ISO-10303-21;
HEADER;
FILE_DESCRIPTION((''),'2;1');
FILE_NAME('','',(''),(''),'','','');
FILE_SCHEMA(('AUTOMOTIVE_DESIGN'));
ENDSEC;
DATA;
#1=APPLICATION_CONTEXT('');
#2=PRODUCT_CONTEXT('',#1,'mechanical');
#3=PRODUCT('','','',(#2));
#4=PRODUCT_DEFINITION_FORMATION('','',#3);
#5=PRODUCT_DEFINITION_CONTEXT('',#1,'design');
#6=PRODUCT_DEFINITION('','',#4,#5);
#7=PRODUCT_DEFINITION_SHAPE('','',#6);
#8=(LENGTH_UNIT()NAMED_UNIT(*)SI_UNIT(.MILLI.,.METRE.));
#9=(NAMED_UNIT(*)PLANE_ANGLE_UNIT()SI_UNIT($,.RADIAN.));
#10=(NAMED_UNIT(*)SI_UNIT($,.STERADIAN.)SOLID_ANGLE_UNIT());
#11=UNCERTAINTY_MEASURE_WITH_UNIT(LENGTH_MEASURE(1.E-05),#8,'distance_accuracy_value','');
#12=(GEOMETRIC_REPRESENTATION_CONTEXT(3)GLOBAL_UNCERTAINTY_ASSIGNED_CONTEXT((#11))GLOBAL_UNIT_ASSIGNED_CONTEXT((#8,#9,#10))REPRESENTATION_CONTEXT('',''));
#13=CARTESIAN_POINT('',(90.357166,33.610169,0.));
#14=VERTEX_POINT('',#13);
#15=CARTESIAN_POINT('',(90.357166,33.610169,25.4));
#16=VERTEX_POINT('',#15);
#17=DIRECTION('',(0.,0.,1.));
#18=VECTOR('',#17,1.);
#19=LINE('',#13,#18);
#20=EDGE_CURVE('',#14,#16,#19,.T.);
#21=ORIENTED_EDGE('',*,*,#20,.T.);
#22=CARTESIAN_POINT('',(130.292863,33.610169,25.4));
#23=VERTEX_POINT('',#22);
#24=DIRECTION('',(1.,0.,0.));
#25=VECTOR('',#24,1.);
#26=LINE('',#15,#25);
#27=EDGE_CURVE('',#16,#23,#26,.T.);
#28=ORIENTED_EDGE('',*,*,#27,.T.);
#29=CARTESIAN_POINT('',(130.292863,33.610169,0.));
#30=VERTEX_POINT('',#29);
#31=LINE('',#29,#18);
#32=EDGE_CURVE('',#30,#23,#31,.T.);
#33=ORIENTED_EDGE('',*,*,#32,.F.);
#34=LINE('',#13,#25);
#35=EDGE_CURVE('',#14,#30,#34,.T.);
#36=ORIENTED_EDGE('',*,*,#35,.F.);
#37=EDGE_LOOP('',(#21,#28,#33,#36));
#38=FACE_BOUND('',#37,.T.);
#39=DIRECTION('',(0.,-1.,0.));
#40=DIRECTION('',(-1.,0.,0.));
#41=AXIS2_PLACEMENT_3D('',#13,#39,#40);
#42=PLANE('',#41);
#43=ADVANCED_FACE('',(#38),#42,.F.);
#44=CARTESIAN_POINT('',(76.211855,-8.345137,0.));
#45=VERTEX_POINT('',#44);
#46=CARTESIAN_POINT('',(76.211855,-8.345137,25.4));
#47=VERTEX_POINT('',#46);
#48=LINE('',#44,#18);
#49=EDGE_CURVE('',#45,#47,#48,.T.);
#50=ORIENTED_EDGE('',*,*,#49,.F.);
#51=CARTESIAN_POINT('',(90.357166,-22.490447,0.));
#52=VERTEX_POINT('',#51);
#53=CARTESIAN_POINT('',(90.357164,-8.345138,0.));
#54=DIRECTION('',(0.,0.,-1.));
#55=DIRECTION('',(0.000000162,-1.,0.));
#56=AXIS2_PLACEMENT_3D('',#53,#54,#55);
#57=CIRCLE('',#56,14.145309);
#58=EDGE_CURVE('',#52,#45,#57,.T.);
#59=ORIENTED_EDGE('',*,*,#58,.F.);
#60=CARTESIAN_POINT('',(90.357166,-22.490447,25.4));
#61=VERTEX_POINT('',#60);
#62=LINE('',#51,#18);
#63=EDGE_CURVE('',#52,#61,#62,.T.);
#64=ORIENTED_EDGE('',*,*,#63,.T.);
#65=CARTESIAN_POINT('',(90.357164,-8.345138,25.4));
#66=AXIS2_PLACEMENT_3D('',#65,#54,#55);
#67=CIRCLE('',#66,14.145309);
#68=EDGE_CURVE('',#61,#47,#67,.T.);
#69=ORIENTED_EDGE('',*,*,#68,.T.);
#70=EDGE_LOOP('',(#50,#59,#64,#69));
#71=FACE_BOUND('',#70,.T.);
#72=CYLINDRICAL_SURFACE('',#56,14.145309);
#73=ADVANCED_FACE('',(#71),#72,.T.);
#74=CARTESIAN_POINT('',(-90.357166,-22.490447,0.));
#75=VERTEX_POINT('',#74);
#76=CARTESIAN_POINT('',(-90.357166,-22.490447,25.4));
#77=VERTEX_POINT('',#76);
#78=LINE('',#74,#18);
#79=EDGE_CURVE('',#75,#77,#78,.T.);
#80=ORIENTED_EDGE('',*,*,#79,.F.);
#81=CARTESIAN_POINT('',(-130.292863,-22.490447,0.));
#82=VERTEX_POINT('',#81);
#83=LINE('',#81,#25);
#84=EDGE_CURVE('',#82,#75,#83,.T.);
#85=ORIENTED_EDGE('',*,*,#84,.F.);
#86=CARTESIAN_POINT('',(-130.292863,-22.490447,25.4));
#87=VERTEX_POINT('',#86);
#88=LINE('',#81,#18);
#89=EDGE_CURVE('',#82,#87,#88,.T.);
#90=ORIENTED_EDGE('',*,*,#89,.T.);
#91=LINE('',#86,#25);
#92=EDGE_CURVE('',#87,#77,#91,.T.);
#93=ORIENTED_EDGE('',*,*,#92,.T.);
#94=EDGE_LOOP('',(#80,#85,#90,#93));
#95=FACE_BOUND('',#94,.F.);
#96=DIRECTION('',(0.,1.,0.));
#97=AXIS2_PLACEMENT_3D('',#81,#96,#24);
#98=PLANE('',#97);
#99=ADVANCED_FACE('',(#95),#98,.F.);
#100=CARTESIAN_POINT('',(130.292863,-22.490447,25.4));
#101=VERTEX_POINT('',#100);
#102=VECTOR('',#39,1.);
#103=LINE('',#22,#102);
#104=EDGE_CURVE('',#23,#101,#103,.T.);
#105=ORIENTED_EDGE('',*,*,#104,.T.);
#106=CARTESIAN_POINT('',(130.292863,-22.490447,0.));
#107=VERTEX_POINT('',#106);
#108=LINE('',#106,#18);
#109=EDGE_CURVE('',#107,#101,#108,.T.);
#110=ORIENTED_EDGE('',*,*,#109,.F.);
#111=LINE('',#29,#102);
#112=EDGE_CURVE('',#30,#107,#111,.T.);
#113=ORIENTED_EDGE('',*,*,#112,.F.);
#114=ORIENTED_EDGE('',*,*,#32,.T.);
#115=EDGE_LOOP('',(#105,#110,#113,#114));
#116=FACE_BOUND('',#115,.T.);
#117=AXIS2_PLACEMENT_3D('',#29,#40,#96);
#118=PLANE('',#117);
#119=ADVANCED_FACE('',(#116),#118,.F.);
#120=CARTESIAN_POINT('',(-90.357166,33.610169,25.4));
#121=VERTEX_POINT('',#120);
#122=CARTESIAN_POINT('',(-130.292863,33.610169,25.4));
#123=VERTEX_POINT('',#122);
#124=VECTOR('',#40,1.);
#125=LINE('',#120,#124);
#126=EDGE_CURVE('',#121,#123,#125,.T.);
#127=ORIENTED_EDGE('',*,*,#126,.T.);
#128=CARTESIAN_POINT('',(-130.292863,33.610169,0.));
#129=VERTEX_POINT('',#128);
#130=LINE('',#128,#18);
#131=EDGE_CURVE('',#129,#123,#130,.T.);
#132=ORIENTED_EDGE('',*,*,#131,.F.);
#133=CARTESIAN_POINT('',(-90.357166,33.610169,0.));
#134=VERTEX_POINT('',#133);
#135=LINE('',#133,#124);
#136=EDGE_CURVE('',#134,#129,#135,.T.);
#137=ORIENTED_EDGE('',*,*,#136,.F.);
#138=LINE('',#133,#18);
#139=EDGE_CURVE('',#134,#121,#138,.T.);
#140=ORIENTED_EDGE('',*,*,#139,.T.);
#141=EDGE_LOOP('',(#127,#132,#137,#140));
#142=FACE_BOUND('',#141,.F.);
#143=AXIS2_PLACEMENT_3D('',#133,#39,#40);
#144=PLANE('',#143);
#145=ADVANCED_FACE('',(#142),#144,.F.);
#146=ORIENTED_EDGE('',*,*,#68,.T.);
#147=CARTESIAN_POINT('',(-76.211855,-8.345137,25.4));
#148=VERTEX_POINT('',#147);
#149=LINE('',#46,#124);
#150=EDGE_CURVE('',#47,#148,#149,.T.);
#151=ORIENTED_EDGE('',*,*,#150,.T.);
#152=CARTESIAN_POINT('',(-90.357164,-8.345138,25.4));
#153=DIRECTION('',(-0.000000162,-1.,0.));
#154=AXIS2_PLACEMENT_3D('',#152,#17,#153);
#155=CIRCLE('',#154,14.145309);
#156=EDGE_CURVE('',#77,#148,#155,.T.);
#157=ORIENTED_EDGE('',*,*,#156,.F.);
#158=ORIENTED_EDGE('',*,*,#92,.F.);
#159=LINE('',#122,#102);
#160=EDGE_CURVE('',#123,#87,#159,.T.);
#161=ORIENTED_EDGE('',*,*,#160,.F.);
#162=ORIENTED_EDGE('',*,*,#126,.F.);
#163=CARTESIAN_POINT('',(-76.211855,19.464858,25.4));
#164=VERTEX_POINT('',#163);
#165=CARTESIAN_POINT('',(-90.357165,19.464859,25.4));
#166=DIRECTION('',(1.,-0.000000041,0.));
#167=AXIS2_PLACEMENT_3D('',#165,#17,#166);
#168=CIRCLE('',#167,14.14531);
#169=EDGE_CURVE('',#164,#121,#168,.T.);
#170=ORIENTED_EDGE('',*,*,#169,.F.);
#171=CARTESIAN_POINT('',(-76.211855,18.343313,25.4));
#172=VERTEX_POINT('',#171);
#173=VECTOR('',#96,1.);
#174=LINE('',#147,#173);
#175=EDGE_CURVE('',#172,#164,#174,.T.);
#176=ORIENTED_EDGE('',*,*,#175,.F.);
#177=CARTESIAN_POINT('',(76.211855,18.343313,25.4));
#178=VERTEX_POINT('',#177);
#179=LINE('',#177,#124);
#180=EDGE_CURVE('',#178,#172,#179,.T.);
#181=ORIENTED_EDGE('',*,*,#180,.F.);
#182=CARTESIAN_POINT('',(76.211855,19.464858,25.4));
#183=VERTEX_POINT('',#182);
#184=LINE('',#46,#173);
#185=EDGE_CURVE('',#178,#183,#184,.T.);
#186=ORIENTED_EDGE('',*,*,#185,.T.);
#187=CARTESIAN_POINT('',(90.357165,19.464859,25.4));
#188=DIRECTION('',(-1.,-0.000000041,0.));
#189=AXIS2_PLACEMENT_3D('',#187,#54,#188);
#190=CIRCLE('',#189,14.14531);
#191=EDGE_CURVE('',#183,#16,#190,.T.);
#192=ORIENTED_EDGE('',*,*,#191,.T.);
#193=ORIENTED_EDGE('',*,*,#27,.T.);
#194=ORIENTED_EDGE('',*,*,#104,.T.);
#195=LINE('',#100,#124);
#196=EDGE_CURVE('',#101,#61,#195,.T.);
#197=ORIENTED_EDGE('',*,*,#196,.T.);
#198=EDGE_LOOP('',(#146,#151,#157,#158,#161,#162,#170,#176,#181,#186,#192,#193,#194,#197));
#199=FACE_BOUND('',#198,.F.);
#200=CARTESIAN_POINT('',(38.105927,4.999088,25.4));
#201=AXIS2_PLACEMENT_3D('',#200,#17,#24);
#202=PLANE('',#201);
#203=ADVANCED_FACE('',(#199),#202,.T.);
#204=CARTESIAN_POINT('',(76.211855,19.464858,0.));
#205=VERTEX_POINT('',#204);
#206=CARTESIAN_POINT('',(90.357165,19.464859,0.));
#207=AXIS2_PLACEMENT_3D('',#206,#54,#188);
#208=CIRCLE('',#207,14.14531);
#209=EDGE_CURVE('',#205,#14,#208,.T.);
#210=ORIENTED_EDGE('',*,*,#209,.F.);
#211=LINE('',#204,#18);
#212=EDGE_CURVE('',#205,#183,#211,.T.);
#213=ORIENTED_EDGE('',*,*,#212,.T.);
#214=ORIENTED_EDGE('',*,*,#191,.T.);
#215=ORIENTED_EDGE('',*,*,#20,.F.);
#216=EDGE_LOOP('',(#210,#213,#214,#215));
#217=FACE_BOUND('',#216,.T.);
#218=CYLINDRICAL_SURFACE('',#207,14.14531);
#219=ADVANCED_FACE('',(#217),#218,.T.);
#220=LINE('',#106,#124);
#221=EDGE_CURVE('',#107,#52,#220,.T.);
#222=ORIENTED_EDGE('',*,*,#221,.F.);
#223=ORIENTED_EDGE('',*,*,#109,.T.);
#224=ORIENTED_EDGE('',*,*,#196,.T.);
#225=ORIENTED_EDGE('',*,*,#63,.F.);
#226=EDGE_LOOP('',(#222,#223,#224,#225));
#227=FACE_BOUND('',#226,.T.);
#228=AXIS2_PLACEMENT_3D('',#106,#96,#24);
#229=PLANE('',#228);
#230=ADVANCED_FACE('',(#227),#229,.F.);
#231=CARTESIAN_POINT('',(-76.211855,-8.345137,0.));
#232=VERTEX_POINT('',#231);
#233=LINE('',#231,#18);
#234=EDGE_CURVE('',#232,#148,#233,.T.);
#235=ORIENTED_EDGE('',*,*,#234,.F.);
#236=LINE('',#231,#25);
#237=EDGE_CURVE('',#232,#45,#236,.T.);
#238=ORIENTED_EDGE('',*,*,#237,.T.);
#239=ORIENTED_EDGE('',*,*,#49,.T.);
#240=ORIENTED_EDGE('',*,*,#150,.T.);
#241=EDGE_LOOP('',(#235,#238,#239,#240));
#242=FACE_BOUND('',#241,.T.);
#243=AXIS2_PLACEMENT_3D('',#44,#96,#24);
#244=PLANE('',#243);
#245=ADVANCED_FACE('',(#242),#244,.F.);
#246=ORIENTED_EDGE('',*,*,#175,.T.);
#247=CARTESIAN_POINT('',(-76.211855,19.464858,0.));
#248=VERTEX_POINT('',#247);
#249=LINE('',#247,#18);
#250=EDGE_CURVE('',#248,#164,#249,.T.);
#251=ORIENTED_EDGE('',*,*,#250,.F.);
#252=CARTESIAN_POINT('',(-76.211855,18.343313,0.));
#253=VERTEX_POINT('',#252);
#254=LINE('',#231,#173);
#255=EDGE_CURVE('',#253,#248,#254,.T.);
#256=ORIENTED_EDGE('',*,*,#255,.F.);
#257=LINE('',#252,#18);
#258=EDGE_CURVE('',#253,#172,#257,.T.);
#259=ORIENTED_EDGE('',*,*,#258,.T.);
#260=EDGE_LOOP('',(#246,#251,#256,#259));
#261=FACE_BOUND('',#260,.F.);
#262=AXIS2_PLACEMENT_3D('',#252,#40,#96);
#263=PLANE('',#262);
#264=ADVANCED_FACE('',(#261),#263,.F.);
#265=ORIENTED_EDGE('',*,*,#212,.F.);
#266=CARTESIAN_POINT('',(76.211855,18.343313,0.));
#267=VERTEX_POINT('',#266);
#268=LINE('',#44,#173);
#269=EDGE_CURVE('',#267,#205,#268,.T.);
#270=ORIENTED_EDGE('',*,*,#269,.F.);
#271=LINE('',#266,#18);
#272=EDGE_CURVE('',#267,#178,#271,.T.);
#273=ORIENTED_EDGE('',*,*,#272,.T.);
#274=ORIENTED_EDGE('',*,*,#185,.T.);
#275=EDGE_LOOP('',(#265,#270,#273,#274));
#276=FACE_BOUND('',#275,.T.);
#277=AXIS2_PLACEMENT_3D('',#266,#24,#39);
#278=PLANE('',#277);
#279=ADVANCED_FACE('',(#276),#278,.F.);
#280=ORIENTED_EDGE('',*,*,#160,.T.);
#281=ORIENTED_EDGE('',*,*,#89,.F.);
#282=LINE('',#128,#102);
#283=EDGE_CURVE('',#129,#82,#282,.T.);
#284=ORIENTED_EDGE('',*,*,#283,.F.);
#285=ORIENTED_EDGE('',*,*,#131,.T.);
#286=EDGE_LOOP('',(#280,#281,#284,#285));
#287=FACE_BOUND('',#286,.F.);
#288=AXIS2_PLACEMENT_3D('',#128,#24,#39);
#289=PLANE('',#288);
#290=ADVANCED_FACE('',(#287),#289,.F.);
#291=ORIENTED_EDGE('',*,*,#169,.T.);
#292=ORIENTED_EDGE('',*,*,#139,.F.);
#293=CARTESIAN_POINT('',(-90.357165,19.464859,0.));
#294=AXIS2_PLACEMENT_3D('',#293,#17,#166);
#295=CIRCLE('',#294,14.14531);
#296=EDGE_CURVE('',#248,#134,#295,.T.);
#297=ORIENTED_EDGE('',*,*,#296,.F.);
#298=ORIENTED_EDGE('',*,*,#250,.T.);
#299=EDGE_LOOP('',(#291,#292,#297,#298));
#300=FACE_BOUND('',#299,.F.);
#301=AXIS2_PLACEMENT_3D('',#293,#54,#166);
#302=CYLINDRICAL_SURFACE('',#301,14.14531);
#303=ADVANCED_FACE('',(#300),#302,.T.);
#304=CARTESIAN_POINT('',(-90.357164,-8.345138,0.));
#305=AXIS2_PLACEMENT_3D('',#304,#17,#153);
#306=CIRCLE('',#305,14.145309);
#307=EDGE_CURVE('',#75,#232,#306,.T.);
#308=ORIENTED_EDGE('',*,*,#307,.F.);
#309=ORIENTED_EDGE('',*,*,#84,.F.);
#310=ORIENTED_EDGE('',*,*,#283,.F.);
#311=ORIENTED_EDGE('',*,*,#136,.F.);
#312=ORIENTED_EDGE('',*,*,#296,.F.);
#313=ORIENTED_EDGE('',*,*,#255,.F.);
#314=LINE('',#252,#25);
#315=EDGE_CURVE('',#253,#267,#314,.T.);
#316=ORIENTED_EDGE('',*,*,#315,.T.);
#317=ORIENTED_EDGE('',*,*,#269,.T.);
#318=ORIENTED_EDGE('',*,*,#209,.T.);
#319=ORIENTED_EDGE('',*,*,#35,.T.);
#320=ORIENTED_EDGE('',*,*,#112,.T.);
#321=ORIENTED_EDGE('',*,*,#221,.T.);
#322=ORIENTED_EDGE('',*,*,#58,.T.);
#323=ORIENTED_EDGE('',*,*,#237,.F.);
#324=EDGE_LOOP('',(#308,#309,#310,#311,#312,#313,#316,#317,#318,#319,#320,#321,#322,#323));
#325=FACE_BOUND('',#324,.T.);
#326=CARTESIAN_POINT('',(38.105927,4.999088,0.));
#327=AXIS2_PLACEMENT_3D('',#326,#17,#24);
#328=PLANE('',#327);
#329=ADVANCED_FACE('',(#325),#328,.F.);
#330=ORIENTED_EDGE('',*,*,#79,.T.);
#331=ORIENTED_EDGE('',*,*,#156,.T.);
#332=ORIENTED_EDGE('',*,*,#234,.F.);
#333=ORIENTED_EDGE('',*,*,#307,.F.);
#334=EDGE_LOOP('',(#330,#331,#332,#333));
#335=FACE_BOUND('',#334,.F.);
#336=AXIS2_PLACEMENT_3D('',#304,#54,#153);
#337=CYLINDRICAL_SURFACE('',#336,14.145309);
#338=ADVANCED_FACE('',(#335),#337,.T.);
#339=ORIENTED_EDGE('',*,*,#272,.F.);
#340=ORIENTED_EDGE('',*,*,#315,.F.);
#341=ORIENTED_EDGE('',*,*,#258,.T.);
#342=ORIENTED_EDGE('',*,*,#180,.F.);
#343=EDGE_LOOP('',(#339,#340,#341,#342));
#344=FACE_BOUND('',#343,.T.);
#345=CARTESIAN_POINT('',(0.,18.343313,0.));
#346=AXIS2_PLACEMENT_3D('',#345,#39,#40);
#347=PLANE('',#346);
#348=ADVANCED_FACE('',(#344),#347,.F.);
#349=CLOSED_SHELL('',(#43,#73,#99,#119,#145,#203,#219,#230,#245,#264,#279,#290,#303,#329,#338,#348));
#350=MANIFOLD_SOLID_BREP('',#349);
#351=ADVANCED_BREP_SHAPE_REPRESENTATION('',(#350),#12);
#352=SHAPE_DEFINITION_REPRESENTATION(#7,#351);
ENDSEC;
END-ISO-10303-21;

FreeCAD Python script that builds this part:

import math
import FreeCAD as App
import Part
import Sketcher

V = App.Vector
Q = App.Units.Quantity

doc = App.newDocument("Part")
body = doc.addObject("PartDesign::Body", "Body")

# Sketch on XY plane
sketch1 = body.newObject("Sketcher::SketchObject", "Sketch")
sketch1.AttachmentSupport = (doc.getObject("XY_Plane"), [""])
sketch1.MapMode = "FlatFace"
sketch1.addGeometry([
    Part.LineSegment(V(-76.2, -8.3, 0), V(0, -8.3, 0)),  # 0
    Part.LineSegment(V(0, -8.3, 0), V(0, 18.3, 0)),  # 1
    Part.LineSegment(V(0, 18.3, 0), V(-76.2, 18.3, 0)),  # 2
    Part.LineSegment(V(-76.2, 18.3, 0), V(-76.2, 19.5, 0)),  # 3
    Part.ArcOfCircle(Part.Circle(V(-90.4, 19.5, 0), V(0, 0, 1), 14.1), math.radians(0), math.radians(90)),  # 4
    Part.LineSegment(V(-90.4, 33.6, 0), V(-130.3, 33.6, 0)),  # 5
    Part.LineSegment(V(-130.3, 33.6, 0), V(-130.3, -22.5, 0)),  # 6
    Part.LineSegment(V(-130.3, -22.5, 0), V(-90.4, -22.5, 0)),  # 7
    Part.ArcOfCircle(Part.Circle(V(-90.4, -8.3, 0), V(0, 0, 1), 14.1), math.radians(-90), math.radians(0)),  # 8
], False)
sketch1.addConstraint([
    Sketcher.Constraint("Coincident", 0, 2, 1, 1),
    Sketcher.Constraint("Coincident", 1, 2, 2, 1),
    Sketcher.Constraint("Coincident", 2, 2, 3, 1),
    Sketcher.Constraint("Tangent", 3, 2, 4, 1),
    Sketcher.Constraint("Tangent", 4, 2, 5, 1),
    Sketcher.Constraint("Coincident", 5, 2, 6, 1),
    Sketcher.Constraint("Coincident", 6, 2, 7, 1),
    Sketcher.Constraint("Tangent", 7, 2, 8, 1),
    Sketcher.Constraint("Coincident", 8, 2, 0, 1),
    Sketcher.Constraint("Horizontal", 0),
    Sketcher.Constraint("Vertical", 1),
    Sketcher.Constraint("Horizontal", 2),
    Sketcher.Constraint("Vertical", 3),
    Sketcher.Constraint("Horizontal", 5),
    Sketcher.Constraint("Vertical", 6),
    Sketcher.Constraint("Horizontal", 7),
    Sketcher.Constraint("Equal", 4, 8),
    Sketcher.Constraint("PointOnObject", 0, 2, -2),
    Sketcher.Constraint("Horizontal", 8, 3, 0, 2),
    Sketcher.Constraint("Vertical", 4, 3, 8, 3),
    Sketcher.Constraint("Radius", 4, Q("14.14531 mm")),
    Sketcher.Constraint("DistanceY", 1, 1, 1, 2, Q("26.68845 mm")),
    Sketcher.Constraint("DistanceX", 5, 2, 8, 3, Q("39.935699 mm")),
    Sketcher.Constraint("DistanceX", 0, 1, 0, 2, Q("76.211855 mm")),
    Sketcher.Constraint("DistanceY", 3, 1, 3, 2, Q("1.121545 mm")),
    Sketcher.Constraint("DistanceY", -1, 1, 4, 3, Q("19.464859 mm")),
])
pad1 = body.newObject("PartDesign::Pad", "Pad")
pad1.Profile = sketch1
pad1.Length = Q("1 in")
body2 = doc.addObject("PartDesign::Body", "Body001")
doc.recompute()

body2.BaseFeature = body
doc.recompute()

mirroring = doc.addObject("Part::Mirroring", "Mirroring")
mirroring.Source = body
mirroring.Base = V(0, 4.999088, 12.7)
mirroring.Normal = V(1, 0, 0)
body3 = doc.addObject("PartDesign::Body", "Body002")
body3.BaseFeature = mirroring
boolean = body2.newObject("PartDesign::Boolean", "Boolean")
boolean.Type = "Fuse"
boolean.addObjects([body3])
doc.recompute()
mirroring.Visibility = False

doc.recompute()
